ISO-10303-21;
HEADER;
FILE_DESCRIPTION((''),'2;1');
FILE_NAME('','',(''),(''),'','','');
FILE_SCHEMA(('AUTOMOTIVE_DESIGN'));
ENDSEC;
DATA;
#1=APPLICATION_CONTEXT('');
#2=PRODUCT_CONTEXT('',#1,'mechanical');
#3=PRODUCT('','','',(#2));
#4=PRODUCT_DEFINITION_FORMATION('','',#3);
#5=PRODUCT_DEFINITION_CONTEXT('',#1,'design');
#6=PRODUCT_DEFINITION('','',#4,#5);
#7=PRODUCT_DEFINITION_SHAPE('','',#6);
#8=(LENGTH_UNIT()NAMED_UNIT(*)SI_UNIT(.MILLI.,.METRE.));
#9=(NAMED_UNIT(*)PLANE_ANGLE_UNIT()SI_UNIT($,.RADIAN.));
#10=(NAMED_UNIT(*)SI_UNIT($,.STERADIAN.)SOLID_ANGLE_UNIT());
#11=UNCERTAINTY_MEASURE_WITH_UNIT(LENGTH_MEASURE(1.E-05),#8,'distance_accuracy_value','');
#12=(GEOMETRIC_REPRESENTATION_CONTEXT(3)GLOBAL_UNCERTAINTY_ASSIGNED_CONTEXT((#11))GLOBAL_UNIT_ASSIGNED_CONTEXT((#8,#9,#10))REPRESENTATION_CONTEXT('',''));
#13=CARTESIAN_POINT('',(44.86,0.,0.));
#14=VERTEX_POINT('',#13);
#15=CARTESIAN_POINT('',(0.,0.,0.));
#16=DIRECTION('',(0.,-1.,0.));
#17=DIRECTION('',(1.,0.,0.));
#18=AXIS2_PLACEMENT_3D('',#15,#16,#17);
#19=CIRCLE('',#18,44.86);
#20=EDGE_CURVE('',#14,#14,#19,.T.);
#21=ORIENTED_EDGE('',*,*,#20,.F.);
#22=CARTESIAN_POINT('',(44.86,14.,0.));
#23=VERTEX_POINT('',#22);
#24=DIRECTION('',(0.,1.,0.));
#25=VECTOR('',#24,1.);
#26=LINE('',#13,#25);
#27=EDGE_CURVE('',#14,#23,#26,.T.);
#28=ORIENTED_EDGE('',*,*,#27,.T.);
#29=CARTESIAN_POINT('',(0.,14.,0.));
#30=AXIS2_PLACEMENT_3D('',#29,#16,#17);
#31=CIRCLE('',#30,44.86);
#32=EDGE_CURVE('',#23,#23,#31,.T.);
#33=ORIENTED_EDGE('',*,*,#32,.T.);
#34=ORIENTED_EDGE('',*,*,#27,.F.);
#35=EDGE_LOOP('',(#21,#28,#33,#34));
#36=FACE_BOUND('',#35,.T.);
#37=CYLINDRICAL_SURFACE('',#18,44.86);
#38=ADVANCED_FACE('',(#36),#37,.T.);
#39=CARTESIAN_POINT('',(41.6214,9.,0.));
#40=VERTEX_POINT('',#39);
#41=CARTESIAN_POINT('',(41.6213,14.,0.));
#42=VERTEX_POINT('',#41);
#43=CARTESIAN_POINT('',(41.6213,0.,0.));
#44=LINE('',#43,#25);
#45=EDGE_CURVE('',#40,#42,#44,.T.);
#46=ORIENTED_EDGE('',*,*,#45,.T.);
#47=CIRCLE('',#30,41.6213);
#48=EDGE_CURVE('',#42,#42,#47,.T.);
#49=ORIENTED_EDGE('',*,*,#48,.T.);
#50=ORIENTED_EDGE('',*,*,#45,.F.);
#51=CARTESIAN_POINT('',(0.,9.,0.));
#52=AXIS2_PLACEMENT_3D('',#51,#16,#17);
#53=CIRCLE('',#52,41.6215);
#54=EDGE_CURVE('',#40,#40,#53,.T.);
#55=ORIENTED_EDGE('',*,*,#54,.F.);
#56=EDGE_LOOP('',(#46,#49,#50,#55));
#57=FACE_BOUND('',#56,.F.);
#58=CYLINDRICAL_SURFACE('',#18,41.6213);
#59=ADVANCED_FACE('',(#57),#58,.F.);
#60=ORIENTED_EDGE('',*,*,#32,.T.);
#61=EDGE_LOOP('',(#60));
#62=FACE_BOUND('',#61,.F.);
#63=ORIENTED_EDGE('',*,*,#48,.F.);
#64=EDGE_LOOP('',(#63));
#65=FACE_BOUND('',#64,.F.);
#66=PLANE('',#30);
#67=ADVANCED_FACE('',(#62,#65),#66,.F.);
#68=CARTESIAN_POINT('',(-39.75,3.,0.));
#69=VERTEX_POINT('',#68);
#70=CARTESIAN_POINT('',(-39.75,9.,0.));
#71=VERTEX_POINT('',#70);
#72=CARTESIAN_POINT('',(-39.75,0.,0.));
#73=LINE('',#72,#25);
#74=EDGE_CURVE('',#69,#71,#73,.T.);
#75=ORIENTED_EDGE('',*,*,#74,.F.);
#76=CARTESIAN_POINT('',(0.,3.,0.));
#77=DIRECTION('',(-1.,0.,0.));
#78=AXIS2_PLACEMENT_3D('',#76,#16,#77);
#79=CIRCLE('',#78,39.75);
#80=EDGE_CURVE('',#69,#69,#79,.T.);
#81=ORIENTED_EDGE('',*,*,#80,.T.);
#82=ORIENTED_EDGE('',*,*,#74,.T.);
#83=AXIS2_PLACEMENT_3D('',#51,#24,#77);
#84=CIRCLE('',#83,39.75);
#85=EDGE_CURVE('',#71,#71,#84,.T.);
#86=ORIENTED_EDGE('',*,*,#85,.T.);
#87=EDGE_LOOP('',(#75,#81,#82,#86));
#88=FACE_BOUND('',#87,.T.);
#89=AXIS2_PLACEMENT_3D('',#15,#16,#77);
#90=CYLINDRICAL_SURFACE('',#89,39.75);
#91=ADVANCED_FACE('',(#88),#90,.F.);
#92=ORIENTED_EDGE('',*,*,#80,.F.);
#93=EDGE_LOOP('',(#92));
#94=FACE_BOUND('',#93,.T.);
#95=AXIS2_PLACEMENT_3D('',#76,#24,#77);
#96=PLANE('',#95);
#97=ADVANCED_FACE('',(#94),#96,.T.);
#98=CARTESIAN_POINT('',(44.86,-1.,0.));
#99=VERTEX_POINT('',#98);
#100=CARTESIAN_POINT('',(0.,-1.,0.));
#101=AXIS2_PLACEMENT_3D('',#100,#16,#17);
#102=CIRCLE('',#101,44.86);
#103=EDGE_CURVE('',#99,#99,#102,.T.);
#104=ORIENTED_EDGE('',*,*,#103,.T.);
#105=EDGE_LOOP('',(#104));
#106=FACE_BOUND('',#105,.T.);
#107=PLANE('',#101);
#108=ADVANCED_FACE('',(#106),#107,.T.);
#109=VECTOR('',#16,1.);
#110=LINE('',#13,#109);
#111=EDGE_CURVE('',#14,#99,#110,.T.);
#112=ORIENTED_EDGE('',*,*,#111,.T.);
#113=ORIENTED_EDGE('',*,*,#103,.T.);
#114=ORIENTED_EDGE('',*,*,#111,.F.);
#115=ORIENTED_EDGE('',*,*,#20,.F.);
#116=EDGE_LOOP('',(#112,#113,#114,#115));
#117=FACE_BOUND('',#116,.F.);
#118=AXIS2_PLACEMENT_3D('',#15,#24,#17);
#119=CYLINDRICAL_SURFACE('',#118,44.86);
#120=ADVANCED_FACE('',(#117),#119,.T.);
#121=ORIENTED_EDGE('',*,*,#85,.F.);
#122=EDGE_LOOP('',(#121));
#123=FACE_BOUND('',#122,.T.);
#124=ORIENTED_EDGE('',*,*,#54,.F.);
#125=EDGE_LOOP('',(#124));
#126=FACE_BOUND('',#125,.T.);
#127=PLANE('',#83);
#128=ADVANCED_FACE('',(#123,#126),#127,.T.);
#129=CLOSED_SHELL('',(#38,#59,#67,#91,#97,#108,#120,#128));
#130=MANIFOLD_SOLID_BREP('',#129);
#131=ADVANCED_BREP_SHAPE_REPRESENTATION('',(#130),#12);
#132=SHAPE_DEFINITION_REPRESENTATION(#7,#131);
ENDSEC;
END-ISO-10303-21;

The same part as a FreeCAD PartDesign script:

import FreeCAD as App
import Part
import Sketcher
from FreeCAD import Vector
Q = App.Units.Quantity

doc = App.newDocument("Part")
body = doc.addObject("PartDesign::Body", "Body")

# Sketch on XZ plane
sketch1 = body.newObject("Sketcher::SketchObject", "Sketch")
sketch1.AttachmentSupport = (doc.getObject("XZ_Plane"), [""])
sketch1.MapMode = "FlatFace"
sketch1.addGeometry(Part.Circle(Vector(0, 0, 0), Vector(0, 0, 1), 39.7618), False)
sketch1.addConstraint(Sketcher.Constraint("Coincident", 0, 3, -1, 1))
sketch1.addConstraint(Sketcher.Constraint("Diameter", 0, Q("79.5236 mm")))
pad1 = body.newObject("PartDesign::Pad", "Pad")
pad1.Profile = sketch1
pad1.Length = 3
pad1.Reversed = True

# Sketch on XZ plane
sketch2 = body.newObject("Sketcher::SketchObject", "Sketch001")
sketch2.AttachmentSupport = (doc.getObject("XZ_Plane"), [""])
sketch2.MapMode = "FlatFace"
sketch2.addGeometry(Part.Circle(Vector(0, 0, 0), Vector(0, 0, 1), 41.6215), False)
sketch2.addGeometry(Part.Circle(Vector(0, 0, 0), Vector(0, 0, 1), 39.75), False)
sketch2.addConstraint(Sketcher.Constraint("Coincident", 0, 3, -1, 1))
sketch2.addConstraint(Sketcher.Constraint("Coincident", 1, 3, -1, 1))
sketch2.addConstraint(Sketcher.Constraint("Diameter", 1, Q("79.5 mm")))
sketch2.addConstraint(Sketcher.Constraint("Diameter", 0, Q("83.243 mm")))
pad2 = body.newObject("PartDesign::Pad", "Pad001")
pad2.Profile = sketch2
pad2.Length = 9
pad2.Reversed = True

# Sketch on XZ plane
sketch3 = body.newObject("Sketcher::SketchObject", "Sketch002")
sketch3.AttachmentSupport = (doc.getObject("XZ_Plane"), [""])
sketch3.MapMode = "FlatFace"
sketch3.addGeometry(Part.Circle(Vector(0, 0, 0), Vector(0, 0, 1), 44.86), False)
sketch3.addGeometry(Part.Circle(Vector(0, 0, 0), Vector(0, 0, 1), 41.6213), False)
sketch3.addConstraint(Sketcher.Constraint("Coincident", 0, 3, -1, 1))
sketch3.addConstraint(Sketcher.Constraint("Coincident", 1, 3, -1, 1))
sketch3.addConstraint(Sketcher.Constraint("Diameter", 0, Q("89.72 mm")))
sketch3.addConstraint(Sketcher.Constraint("Diameter", 1, Q("83.2426 mm")))
pad3 = body.newObject("PartDesign::Pad", "Pad002")
pad3.Profile = sketch3
pad3.Length = 14
pad3.Reversed = True

# Sketch on XZ plane
sketch4 = body.newObject("Sketcher::SketchObject", "Sketch003")
sketch4.AttachmentSupport = (doc.getObject("XZ_Plane"), [""])
sketch4.MapMode = "FlatFace"
sketch4.addGeometry(Part.Circle(Vector(0, 0, 0), Vector(0, 0, 1), 44.86), False)
sketch4.addConstraint(Sketcher.Constraint("Coincident", 0, 3, -1, 1))
sketch4.addConstraint(Sketcher.Constraint("Diameter", 0, Q("89.72 mm")))
pad4 = body.newObject("PartDesign::Pad", "Pad003")
pad4.Profile = sketch4
pad4.Length = 1

doc.recompute()
